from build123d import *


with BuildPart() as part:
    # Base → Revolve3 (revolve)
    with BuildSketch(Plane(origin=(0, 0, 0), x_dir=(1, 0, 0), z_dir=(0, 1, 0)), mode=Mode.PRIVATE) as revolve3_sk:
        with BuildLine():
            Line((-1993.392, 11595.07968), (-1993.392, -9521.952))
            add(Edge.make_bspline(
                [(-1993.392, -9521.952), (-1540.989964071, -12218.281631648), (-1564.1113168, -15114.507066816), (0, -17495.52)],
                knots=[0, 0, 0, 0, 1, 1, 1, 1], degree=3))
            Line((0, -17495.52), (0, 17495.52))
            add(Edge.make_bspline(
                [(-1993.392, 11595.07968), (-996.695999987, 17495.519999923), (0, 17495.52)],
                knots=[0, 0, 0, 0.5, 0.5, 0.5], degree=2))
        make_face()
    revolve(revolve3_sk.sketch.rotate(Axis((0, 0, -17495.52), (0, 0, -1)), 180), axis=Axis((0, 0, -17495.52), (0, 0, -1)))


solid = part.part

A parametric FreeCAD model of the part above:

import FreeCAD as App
import Part
import Sketcher
from FreeCAD import Vector

doc = App.newDocument("Part")
body = doc.addObject("PartDesign::Body", "Body")

sketch1 = body.newObject("Sketcher::SketchObject", "Sketch")
sketch1.AttachmentSupport = (doc.getObject("XZ_Plane"), [""])
sketch1.MapMode = "FlatFace"
sketch1.addGeometry([
    Part.LineSegment(Vector(-1993.392, -11595.07968, 0), Vector(-1993.392, 9521.952, 0)),
    Part.BSplineCurve([Vector(-1993.392, 9521.952, 0), Vector(-1540.989964, 12218.281632, 0), Vector(-1564.111317, 15114.507067, 0), Vector(0, 17495.52, 0)], [4, 4], [0, 1], False, 3, [1, 1, 1, 1], False),
    Part.LineSegment(Vector(0, 17495.52, 0), Vector(0, -17495.52, 0)),
    Part.BSplineCurve([Vector(-1993.392, -11595.07968, 0), Vector(-996.696, -17495.52, 0), Vector(0, -17495.52, 0)], [3, 3], [0, 0.5], False, 2, [1, 1, 1], False),
], False)
sketch1.addConstraint([
    Sketcher.Constraint("Block", 1),
    Sketcher.Constraint("Block", 3),
    Sketcher.Constraint("Coincident", 0, 2, 1, 1),
    Sketcher.Constraint("Coincident", 1, 2, 2, 1),
    Sketcher.Constraint("Coincident", 2, 2, 3, 2),
    Sketcher.Constraint("Coincident", 3, 1, 0, 1),
])
revolution = body.newObject("PartDesign::Revolution", "Revolution")
revolution.Profile = sketch1
revolution.ReferenceAxis = (sketch1, ["V_Axis"])
revolution.Angle = 360

doc.recompute()
